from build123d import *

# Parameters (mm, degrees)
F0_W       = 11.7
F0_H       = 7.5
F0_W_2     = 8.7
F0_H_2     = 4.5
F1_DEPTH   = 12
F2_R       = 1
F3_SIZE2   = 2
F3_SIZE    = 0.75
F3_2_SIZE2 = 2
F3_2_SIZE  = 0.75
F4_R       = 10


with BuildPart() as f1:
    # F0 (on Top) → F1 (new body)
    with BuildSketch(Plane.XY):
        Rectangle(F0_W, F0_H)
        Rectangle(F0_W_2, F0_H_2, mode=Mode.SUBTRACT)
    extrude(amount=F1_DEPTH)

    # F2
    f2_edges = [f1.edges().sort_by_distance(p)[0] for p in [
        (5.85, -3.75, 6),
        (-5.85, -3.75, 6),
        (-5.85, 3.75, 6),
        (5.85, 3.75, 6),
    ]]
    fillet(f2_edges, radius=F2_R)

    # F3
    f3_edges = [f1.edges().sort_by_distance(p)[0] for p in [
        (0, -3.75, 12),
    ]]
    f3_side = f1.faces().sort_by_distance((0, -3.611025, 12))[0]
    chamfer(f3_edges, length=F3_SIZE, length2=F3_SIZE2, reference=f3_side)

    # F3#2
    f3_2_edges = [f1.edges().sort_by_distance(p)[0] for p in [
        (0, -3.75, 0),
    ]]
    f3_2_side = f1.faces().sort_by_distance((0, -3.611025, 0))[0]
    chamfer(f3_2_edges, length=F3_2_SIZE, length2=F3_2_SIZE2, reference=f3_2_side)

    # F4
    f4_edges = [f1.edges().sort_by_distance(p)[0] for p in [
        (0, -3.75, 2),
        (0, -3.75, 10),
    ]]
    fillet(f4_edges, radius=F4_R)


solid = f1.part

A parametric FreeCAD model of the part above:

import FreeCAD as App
import Part
import Sketcher
from FreeCAD import Vector


def edges_at(feature, points):
    """Names of the edges that pass closest to the given points."""
    edges = feature.Shape.Edges
    near = lambda p: min(range(len(edges)), key=lambda i: edges[i].distToShape(Part.Vertex(*p))[0])
    return sorted({f"Edge{near(p) + 1}" for p in points})

doc = App.newDocument("Part")
params = doc.addObject("Spreadsheet::Sheet", "Params")
for row, (alias, value) in enumerate([
    ("sketch1_width", "11.7 mm"),
    ("sketch1_width2", "8.7 mm"),
    ("sketch1_height", "7.5 mm"),
    ("sketch1_height2", "4.5 mm"),
    ("pad1_length", "12 mm"),
    ("fillet_radius", "1 mm"),
    ("chamfer_size", "0.75 mm"),
    ("chamfer_size2", "2 mm"),
    ("chamfer2_size", "0.75 mm"),
    ("chamfer2_size2", "2 mm"),
    ("fillet2_radius", "10 mm"),
], start=1):
    params.set(f"A{row}", alias)
    params.set(f"B{row}", "=" + value)
    params.setAlias(f"B{row}", alias)

body = doc.addObject("PartDesign::Body", "Body")

# Sketch on XY plane
sketch1 = body.newObject("Sketcher::SketchObject", "Sketch")
sketch1.AttachmentSupport = (doc.getObject("XY_Plane"), [""])
sketch1.MapMode = "FlatFace"
sketch1.addGeometry([
    Part.LineSegment(Vector(-5.8, 3.8, 0), Vector(-5.8, -3.8, 0)),  # 0
    Part.LineSegment(Vector(-5.8, -3.8, 0), Vector(5.8, -3.8, 0)),  # 1
    Part.LineSegment(Vector(5.8, -3.8, 0), Vector(5.8, 3.8, 0)),  # 2
    Part.LineSegment(Vector(5.8, 3.8, 0), Vector(-5.8, 3.8, 0)),  # 3
    Part.LineSegment(Vector(4.3, -2.2, 0), Vector(-4.3, -2.2, 0)),  # 4
    Part.LineSegment(Vector(-4.3, -2.2, 0), Vector(-4.3, 2.2, 0)),  # 5
    Part.LineSegment(Vector(-4.3, 2.2, 0), Vector(4.3, 2.2, 0)),  # 6
    Part.LineSegment(Vector(4.3, 2.2, 0), Vector(4.3, -2.2, 0)),  # 7
], False)
sketch1.addConstraint([
    Sketcher.Constraint("Coincident", 0, 2, 1, 1),
    Sketcher.Constraint("Coincident", 1, 2, 2, 1),
    Sketcher.Constraint("Coincident", 2, 2, 3, 1),
    Sketcher.Constraint("Coincident", 3, 2, 0, 1),
    Sketcher.Constraint("Coincident", 4, 2, 5, 1),
    Sketcher.Constraint("Coincident", 5, 2, 6, 1),
    Sketcher.Constraint("Coincident", 6, 2, 7, 1),
    Sketcher.Constraint("Coincident", 7, 2, 4, 1),
    Sketcher.Constraint("Vertical", 0),
    Sketcher.Constraint("Horizontal", 1),
    Sketcher.Constraint("Vertical", 2),
    Sketcher.Constraint("Horizontal", 3),
    Sketcher.Constraint("Horizontal", 4),
    Sketcher.Constraint("Vertical", 5),
    Sketcher.Constraint("Horizontal", 6),
    Sketcher.Constraint("Vertical", 7),
    Sketcher.Constraint("Symmetric", 0, 2, 2, 2, -1, 1),
    Sketcher.Constraint("Symmetric", 4, 2, 6, 2, -1, 1),
    Sketcher.Constraint("DistanceX", 1, 1, 1, 2, 11.7),
    Sketcher.Constraint("DistanceX", 4, 2, 4, 1, 8.7),
    Sketcher.Constraint("DistanceY", 0, 2, 0, 1, 7.5),
    Sketcher.Constraint("DistanceY", 5, 1, 5, 2, 4.5),
])
sketch1.setExpression("Constraints[18]", "Params.sketch1_width")
sketch1.setExpression("Constraints[19]", "Params.sketch1_width2")
sketch1.setExpression("Constraints[20]", "Params.sketch1_height")
sketch1.setExpression("Constraints[21]", "Params.sketch1_height2")
pad1 = body.newObject("PartDesign::Pad", "Pad")
pad1.Profile = sketch1
pad1.setExpression("Length", "Params.pad1_length")
doc.recompute()

fillet = body.newObject("PartDesign::Fillet", "Fillet")
fillet.Base = (pad1, edges_at(pad1, [
    (5.85, -3.75, 6),
    (-5.85, -3.75, 6),
    (-5.85, 3.75, 6),
    (5.85, 3.75, 6),
]))
fillet.setExpression("Radius", "Params.fillet_radius")
doc.recompute()

chamfer = body.newObject("PartDesign::Chamfer", "Chamfer")
chamfer.Base = (fillet, edges_at(fillet, [(0, -3.75, 12)]))
chamfer.ChamferType = "Two distances"
chamfer.setExpression("Size", "Params.chamfer_size")
chamfer.setExpression("Size2", "Params.chamfer_size2")
doc.recompute()

chamfer2 = body.newObject("PartDesign::Chamfer", "Chamfer001")
chamfer2.Base = (chamfer, edges_at(chamfer, [(0, -3.75, 0)]))
chamfer2.ChamferType = "Two distances"
chamfer2.setExpression("Size", "Params.chamfer2_size")
chamfer2.setExpression("Size2", "Params.chamfer2_size2")
doc.recompute()

fillet2 = body.newObject("PartDesign::Fillet", "Fillet001")
fillet2.Base = (chamfer2, edges_at(chamfer2, [(0, -3.75, 2), (0, -3.75, 10)]))
fillet2.setExpression("Radius", "Params.fillet2_radius")

doc.recompute()
